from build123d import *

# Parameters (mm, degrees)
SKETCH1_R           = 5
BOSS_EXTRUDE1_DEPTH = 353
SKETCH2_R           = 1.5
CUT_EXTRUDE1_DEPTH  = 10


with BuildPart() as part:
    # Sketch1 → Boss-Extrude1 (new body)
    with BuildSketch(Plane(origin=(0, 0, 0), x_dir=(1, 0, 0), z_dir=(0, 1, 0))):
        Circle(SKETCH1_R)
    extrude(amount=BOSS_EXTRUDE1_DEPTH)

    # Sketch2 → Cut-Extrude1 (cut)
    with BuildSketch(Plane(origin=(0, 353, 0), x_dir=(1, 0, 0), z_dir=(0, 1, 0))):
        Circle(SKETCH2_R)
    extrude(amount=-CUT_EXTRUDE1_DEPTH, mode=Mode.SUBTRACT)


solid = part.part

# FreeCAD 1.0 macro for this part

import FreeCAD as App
import Part
import Sketcher

V = App.Vector

doc = App.newDocument("Part")
body = doc.addObject("PartDesign::Body", "Body")

# Sketch on XZ plane
sketch1 = body.newObject("Sketcher::SketchObject", "Sketch")
sketch1.AttachmentSupport = (doc.getObject("XZ_Plane"), [""])
sketch1.MapMode = "FlatFace"
sketch1.addGeometry(Part.Circle(V(0, 0, 0), V(0, 0, 1), 5), False)
sketch1.addConstraint([
    Sketcher.Constraint("Coincident", 0, 3, -1, 1),
    Sketcher.Constraint("Diameter", 0, 10.0),
])
pad1 = body.newObject("PartDesign::Pad", "Pad")
pad1.Profile = sketch1
pad1.Length = 353
pad1.Reversed = True

# Sketch on XZ plane
sketch2 = body.newObject("Sketcher::SketchObject", "Sketch001")
sketch2.AttachmentSupport = (doc.getObject("XZ_Plane"), [""])
sketch2.MapMode = "FlatFace"
sketch2.AttachmentOffset = App.Placement(V(0, 0, -353), App.Rotation())
sketch2.addGeometry(Part.Circle(V(0, 0, 0), V(0, 0, 1), 1.5), False)
sketch2.addConstraint([
    Sketcher.Constraint("Coincident", 0, 3, -1, 1),
    Sketcher.Constraint("Diameter", 0, 3.0),
])
pocket1 = body.newObject("PartDesign::Pocket", "Pocket")
pocket1.Profile = sketch2
pocket1.Length = 10
pocket1.Reversed = True

doc.recompute()
